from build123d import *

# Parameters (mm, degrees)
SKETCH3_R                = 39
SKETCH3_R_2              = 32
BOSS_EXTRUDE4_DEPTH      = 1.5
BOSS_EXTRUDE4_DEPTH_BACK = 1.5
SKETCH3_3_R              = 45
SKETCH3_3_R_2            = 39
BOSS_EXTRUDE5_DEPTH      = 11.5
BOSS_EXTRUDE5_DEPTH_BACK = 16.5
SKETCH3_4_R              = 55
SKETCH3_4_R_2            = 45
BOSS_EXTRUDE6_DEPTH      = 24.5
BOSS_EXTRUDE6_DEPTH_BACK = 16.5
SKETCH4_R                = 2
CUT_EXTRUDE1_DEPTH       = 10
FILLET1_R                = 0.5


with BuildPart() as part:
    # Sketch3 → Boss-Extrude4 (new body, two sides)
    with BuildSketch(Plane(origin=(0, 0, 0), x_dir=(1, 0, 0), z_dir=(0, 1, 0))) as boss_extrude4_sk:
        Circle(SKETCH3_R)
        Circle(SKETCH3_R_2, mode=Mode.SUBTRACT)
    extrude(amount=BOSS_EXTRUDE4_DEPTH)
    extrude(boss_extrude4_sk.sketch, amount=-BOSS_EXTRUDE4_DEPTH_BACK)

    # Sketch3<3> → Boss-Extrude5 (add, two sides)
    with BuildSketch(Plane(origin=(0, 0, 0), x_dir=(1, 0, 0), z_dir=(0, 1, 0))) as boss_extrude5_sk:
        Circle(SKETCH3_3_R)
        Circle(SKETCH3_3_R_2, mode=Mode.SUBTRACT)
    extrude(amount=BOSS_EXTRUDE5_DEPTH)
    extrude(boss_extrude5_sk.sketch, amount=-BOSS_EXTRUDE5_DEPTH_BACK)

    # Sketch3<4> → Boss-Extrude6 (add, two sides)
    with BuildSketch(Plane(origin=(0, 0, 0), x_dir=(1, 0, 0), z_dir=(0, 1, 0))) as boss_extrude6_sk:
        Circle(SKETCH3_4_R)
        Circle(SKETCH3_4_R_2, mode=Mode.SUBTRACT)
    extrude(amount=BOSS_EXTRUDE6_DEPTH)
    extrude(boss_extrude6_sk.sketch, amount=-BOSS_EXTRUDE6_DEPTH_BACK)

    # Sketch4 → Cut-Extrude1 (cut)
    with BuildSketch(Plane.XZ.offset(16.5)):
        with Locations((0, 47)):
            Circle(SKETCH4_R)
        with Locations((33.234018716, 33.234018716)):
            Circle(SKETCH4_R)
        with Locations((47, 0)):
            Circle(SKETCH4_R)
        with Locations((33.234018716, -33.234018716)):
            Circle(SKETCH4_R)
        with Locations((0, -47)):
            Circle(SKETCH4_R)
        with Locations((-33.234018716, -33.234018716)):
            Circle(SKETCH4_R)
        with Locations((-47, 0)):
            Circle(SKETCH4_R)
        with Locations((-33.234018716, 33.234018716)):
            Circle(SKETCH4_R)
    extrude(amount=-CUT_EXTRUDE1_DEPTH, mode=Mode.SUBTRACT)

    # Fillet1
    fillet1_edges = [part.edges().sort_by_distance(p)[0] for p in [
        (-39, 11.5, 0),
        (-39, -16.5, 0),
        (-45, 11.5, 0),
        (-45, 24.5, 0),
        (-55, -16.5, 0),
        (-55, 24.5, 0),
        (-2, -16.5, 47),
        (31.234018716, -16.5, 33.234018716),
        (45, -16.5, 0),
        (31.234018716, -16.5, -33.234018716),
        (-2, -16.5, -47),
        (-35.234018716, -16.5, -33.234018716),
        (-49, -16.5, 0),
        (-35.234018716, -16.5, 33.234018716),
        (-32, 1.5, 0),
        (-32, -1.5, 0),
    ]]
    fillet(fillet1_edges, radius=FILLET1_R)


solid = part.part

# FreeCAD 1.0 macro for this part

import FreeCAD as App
import Part
import Sketcher
from FreeCAD import Vector
Q = App.Units.Quantity


def edges_at(feature, points):
    """Names of the edges that pass closest to the given points."""
    edges = feature.Shape.Edges
    near = lambda p: min(range(len(edges)), key=lambda i: edges[i].distToShape(Part.Vertex(*p))[0])
    return sorted({f"Edge{near(p) + 1}" for p in points})

doc = App.newDocument("Part")
body = doc.addObject("PartDesign::Body", "Body")

# Sketch on XZ plane
sketch1 = body.newObject("Sketcher::SketchObject", "Sketch")
sketch1.AttachmentSupport = (doc.getObject("XZ_Plane"), [""])
sketch1.MapMode = "FlatFace"
sketch1.addGeometry([
    Part.Circle(Vector(0, 0, 0), Vector(0, 0, 1), 39),
    Part.Circle(Vector(0, 0, 0), Vector(0, 0, 1), 32),
], False)
sketch1.addConstraint([
    Sketcher.Constraint("Coincident", 0, 3, -1, 1),
    Sketcher.Constraint("Coincident", 1, 3, -1, 1),
    Sketcher.Constraint("Diameter", 0, Q("78 mm")),
    Sketcher.Constraint("Diameter", 1, Q("64 mm")),
])
pad1 = body.newObject("PartDesign::Pad", "Pad")
pad1.Profile = sketch1
pad1.Type = "TwoLengths"
pad1.Length = 1.5
pad1.Length2 = 1.5
pad1.Reversed = True

# Sketch on XZ plane
sketch2 = body.newObject("Sketcher::SketchObject", "Sketch001")
sketch2.AttachmentSupport = (doc.getObject("XZ_Plane"), [""])
sketch2.MapMode = "FlatFace"
sketch2.addGeometry([
    Part.Circle(Vector(0, 0, 0), Vector(0, 0, 1), 45),
    Part.Circle(Vector(0, 0, 0), Vector(0, 0, 1), 39),
], False)
sketch2.addConstraint([
    Sketcher.Constraint("Coincident", 0, 3, -1, 1),
    Sketcher.Constraint("Coincident", 1, 3, -1, 1),
    Sketcher.Constraint("Diameter", 0, Q("90 mm")),
    Sketcher.Constraint("Diameter", 1, Q("78 mm")),
])
pad2 = body.newObject("PartDesign::Pad", "Pad001")
pad2.Profile = sketch2
pad2.Type = "TwoLengths"
pad2.Length = 11.5
pad2.Length2 = 16.5
pad2.Reversed = True

# Sketch on XZ plane
sketch3 = body.newObject("Sketcher::SketchObject", "Sketch002")
sketch3.AttachmentSupport = (doc.getObject("XZ_Plane"), [""])
sketch3.MapMode = "FlatFace"
sketch3.addGeometry([
    Part.Circle(Vector(0, 0, 0), Vector(0, 0, 1), 55),
    Part.Circle(Vector(0, 0, 0), Vector(0, 0, 1), 45),
], False)
sketch3.addConstraint([
    Sketcher.Constraint("Coincident", 0, 3, -1, 1),
    Sketcher.Constraint("Coincident", 1, 3, -1, 1),
    Sketcher.Constraint("Diameter", 0, Q("110 mm")),
    Sketcher.Constraint("Diameter", 1, Q("90 mm")),
])
pad3 = body.newObject("PartDesign::Pad", "Pad002")
pad3.Profile = sketch3
pad3.Type = "TwoLengths"
pad3.Length = 24.5
pad3.Length2 = 16.5
pad3.Reversed = True

# Sketch on XZ plane
sketch4 = body.newObject("Sketcher::SketchObject", "Sketch003")
sketch4.AttachmentSupport = (doc.getObject("XZ_Plane"), [""])
sketch4.MapMode = "FlatFace"
sketch4.AttachmentOffset = App.Placement(Vector(0, 0, 16.5), App.Rotation())
sketch4.addGeometry([
    Part.Circle(Vector(0, 47, 0), Vector(0, 0, 1), 2),  # 0
    Part.Circle(Vector(33.2, 33.2, 0), Vector(0, 0, 1), 2),  # 1
    Part.Circle(Vector(47, 0, 0), Vector(0, 0, 1), 2),  # 2
    Part.Circle(Vector(33.2, -33.2, 0), Vector(0, 0, 1), 2),  # 3
    Part.Circle(Vector(0, -47, 0), Vector(0, 0, 1), 2),  # 4
    Part.Circle(Vector(-33.2, -33.2, 0), Vector(0, 0, 1), 2),  # 5
    Part.Circle(Vector(-47, 0, 0), Vector(0, 0, 1), 2),  # 6
    Part.Circle(Vector(-33.2, 33.2, 0), Vector(0, 0, 1), 2),  # 7
], False)
sketch4.addConstraint([
    Sketcher.Constraint("Equal", 0, 1),
    Sketcher.Constraint("Equal", 1, 2),
    Sketcher.Constraint("Equal", 2, 3),
    Sketcher.Constraint("Equal", 3, 4),
    Sketcher.Constraint("Equal", 4, 5),
    Sketcher.Constraint("Equal", 5, 6),
    Sketcher.Constraint("Equal", 6, 7),
    Sketcher.Constraint("Symmetric", 0, 3, 4, 3, -1, 1),
    Sketcher.Constraint("Symmetric", 1, 3, 5, 3, -1, 1),
    Sketcher.Constraint("Symmetric", 2, 3, 6, 3, -1, 1),
    Sketcher.Constraint("Symmetric", 3, 3, 7, 3, -1, 1),
    Sketcher.Constraint("Symmetric", 3, 3, 5, 3, -2),
    Sketcher.Constraint("PointOnObject", 0, 3, -2),
    Sketcher.Constraint("PointOnObject", 2, 3, -1),
    Sketcher.Constraint("Diameter", 0, Q("4 mm")),
    Sketcher.Constraint("DistanceY", -1, 1, 0, 3, Q("47 mm")),
    Sketcher.Constraint("DistanceX", -1, 1, 2, 3, Q("47 mm")),
    Sketcher.Constraint("DistanceX", -1, 1, 1, 3, Q("33.234019 mm")),
    Sketcher.Constraint("DistanceY", -1, 1, 1, 3, Q("33.234019 mm")),
])
pocket1 = body.newObject("PartDesign::Pocket", "Pocket")
pocket1.Profile = sketch4
pocket1.Length = 10
doc.recompute()

fillet = body.newObject("PartDesign::Fillet", "Fillet")
fillet.Base = (pocket1, edges_at(pocket1, [
    (-39, 11.5, 0),
    (-39, -16.5, 0),
    (-45, 11.5, 0),
    (-45, 24.5, 0),
    (-55, -16.5, 0),
    (-55, 24.5, 0),
    (-2, -16.5, 47),
    (31.234, -16.5, 33.234),
    (45, -16.5, 0),
    (31.234, -16.5, -33.234),
    (-2, -16.5, -47),
    (-35.234, -16.5, -33.234),
    (-49, -16.5, 0),
    (-35.234, -16.5, 33.234),
    (-32, 1.5, 0),
    (-32, -1.5, 0),
]))
fillet.Radius = 0.5

doc.recompute()
